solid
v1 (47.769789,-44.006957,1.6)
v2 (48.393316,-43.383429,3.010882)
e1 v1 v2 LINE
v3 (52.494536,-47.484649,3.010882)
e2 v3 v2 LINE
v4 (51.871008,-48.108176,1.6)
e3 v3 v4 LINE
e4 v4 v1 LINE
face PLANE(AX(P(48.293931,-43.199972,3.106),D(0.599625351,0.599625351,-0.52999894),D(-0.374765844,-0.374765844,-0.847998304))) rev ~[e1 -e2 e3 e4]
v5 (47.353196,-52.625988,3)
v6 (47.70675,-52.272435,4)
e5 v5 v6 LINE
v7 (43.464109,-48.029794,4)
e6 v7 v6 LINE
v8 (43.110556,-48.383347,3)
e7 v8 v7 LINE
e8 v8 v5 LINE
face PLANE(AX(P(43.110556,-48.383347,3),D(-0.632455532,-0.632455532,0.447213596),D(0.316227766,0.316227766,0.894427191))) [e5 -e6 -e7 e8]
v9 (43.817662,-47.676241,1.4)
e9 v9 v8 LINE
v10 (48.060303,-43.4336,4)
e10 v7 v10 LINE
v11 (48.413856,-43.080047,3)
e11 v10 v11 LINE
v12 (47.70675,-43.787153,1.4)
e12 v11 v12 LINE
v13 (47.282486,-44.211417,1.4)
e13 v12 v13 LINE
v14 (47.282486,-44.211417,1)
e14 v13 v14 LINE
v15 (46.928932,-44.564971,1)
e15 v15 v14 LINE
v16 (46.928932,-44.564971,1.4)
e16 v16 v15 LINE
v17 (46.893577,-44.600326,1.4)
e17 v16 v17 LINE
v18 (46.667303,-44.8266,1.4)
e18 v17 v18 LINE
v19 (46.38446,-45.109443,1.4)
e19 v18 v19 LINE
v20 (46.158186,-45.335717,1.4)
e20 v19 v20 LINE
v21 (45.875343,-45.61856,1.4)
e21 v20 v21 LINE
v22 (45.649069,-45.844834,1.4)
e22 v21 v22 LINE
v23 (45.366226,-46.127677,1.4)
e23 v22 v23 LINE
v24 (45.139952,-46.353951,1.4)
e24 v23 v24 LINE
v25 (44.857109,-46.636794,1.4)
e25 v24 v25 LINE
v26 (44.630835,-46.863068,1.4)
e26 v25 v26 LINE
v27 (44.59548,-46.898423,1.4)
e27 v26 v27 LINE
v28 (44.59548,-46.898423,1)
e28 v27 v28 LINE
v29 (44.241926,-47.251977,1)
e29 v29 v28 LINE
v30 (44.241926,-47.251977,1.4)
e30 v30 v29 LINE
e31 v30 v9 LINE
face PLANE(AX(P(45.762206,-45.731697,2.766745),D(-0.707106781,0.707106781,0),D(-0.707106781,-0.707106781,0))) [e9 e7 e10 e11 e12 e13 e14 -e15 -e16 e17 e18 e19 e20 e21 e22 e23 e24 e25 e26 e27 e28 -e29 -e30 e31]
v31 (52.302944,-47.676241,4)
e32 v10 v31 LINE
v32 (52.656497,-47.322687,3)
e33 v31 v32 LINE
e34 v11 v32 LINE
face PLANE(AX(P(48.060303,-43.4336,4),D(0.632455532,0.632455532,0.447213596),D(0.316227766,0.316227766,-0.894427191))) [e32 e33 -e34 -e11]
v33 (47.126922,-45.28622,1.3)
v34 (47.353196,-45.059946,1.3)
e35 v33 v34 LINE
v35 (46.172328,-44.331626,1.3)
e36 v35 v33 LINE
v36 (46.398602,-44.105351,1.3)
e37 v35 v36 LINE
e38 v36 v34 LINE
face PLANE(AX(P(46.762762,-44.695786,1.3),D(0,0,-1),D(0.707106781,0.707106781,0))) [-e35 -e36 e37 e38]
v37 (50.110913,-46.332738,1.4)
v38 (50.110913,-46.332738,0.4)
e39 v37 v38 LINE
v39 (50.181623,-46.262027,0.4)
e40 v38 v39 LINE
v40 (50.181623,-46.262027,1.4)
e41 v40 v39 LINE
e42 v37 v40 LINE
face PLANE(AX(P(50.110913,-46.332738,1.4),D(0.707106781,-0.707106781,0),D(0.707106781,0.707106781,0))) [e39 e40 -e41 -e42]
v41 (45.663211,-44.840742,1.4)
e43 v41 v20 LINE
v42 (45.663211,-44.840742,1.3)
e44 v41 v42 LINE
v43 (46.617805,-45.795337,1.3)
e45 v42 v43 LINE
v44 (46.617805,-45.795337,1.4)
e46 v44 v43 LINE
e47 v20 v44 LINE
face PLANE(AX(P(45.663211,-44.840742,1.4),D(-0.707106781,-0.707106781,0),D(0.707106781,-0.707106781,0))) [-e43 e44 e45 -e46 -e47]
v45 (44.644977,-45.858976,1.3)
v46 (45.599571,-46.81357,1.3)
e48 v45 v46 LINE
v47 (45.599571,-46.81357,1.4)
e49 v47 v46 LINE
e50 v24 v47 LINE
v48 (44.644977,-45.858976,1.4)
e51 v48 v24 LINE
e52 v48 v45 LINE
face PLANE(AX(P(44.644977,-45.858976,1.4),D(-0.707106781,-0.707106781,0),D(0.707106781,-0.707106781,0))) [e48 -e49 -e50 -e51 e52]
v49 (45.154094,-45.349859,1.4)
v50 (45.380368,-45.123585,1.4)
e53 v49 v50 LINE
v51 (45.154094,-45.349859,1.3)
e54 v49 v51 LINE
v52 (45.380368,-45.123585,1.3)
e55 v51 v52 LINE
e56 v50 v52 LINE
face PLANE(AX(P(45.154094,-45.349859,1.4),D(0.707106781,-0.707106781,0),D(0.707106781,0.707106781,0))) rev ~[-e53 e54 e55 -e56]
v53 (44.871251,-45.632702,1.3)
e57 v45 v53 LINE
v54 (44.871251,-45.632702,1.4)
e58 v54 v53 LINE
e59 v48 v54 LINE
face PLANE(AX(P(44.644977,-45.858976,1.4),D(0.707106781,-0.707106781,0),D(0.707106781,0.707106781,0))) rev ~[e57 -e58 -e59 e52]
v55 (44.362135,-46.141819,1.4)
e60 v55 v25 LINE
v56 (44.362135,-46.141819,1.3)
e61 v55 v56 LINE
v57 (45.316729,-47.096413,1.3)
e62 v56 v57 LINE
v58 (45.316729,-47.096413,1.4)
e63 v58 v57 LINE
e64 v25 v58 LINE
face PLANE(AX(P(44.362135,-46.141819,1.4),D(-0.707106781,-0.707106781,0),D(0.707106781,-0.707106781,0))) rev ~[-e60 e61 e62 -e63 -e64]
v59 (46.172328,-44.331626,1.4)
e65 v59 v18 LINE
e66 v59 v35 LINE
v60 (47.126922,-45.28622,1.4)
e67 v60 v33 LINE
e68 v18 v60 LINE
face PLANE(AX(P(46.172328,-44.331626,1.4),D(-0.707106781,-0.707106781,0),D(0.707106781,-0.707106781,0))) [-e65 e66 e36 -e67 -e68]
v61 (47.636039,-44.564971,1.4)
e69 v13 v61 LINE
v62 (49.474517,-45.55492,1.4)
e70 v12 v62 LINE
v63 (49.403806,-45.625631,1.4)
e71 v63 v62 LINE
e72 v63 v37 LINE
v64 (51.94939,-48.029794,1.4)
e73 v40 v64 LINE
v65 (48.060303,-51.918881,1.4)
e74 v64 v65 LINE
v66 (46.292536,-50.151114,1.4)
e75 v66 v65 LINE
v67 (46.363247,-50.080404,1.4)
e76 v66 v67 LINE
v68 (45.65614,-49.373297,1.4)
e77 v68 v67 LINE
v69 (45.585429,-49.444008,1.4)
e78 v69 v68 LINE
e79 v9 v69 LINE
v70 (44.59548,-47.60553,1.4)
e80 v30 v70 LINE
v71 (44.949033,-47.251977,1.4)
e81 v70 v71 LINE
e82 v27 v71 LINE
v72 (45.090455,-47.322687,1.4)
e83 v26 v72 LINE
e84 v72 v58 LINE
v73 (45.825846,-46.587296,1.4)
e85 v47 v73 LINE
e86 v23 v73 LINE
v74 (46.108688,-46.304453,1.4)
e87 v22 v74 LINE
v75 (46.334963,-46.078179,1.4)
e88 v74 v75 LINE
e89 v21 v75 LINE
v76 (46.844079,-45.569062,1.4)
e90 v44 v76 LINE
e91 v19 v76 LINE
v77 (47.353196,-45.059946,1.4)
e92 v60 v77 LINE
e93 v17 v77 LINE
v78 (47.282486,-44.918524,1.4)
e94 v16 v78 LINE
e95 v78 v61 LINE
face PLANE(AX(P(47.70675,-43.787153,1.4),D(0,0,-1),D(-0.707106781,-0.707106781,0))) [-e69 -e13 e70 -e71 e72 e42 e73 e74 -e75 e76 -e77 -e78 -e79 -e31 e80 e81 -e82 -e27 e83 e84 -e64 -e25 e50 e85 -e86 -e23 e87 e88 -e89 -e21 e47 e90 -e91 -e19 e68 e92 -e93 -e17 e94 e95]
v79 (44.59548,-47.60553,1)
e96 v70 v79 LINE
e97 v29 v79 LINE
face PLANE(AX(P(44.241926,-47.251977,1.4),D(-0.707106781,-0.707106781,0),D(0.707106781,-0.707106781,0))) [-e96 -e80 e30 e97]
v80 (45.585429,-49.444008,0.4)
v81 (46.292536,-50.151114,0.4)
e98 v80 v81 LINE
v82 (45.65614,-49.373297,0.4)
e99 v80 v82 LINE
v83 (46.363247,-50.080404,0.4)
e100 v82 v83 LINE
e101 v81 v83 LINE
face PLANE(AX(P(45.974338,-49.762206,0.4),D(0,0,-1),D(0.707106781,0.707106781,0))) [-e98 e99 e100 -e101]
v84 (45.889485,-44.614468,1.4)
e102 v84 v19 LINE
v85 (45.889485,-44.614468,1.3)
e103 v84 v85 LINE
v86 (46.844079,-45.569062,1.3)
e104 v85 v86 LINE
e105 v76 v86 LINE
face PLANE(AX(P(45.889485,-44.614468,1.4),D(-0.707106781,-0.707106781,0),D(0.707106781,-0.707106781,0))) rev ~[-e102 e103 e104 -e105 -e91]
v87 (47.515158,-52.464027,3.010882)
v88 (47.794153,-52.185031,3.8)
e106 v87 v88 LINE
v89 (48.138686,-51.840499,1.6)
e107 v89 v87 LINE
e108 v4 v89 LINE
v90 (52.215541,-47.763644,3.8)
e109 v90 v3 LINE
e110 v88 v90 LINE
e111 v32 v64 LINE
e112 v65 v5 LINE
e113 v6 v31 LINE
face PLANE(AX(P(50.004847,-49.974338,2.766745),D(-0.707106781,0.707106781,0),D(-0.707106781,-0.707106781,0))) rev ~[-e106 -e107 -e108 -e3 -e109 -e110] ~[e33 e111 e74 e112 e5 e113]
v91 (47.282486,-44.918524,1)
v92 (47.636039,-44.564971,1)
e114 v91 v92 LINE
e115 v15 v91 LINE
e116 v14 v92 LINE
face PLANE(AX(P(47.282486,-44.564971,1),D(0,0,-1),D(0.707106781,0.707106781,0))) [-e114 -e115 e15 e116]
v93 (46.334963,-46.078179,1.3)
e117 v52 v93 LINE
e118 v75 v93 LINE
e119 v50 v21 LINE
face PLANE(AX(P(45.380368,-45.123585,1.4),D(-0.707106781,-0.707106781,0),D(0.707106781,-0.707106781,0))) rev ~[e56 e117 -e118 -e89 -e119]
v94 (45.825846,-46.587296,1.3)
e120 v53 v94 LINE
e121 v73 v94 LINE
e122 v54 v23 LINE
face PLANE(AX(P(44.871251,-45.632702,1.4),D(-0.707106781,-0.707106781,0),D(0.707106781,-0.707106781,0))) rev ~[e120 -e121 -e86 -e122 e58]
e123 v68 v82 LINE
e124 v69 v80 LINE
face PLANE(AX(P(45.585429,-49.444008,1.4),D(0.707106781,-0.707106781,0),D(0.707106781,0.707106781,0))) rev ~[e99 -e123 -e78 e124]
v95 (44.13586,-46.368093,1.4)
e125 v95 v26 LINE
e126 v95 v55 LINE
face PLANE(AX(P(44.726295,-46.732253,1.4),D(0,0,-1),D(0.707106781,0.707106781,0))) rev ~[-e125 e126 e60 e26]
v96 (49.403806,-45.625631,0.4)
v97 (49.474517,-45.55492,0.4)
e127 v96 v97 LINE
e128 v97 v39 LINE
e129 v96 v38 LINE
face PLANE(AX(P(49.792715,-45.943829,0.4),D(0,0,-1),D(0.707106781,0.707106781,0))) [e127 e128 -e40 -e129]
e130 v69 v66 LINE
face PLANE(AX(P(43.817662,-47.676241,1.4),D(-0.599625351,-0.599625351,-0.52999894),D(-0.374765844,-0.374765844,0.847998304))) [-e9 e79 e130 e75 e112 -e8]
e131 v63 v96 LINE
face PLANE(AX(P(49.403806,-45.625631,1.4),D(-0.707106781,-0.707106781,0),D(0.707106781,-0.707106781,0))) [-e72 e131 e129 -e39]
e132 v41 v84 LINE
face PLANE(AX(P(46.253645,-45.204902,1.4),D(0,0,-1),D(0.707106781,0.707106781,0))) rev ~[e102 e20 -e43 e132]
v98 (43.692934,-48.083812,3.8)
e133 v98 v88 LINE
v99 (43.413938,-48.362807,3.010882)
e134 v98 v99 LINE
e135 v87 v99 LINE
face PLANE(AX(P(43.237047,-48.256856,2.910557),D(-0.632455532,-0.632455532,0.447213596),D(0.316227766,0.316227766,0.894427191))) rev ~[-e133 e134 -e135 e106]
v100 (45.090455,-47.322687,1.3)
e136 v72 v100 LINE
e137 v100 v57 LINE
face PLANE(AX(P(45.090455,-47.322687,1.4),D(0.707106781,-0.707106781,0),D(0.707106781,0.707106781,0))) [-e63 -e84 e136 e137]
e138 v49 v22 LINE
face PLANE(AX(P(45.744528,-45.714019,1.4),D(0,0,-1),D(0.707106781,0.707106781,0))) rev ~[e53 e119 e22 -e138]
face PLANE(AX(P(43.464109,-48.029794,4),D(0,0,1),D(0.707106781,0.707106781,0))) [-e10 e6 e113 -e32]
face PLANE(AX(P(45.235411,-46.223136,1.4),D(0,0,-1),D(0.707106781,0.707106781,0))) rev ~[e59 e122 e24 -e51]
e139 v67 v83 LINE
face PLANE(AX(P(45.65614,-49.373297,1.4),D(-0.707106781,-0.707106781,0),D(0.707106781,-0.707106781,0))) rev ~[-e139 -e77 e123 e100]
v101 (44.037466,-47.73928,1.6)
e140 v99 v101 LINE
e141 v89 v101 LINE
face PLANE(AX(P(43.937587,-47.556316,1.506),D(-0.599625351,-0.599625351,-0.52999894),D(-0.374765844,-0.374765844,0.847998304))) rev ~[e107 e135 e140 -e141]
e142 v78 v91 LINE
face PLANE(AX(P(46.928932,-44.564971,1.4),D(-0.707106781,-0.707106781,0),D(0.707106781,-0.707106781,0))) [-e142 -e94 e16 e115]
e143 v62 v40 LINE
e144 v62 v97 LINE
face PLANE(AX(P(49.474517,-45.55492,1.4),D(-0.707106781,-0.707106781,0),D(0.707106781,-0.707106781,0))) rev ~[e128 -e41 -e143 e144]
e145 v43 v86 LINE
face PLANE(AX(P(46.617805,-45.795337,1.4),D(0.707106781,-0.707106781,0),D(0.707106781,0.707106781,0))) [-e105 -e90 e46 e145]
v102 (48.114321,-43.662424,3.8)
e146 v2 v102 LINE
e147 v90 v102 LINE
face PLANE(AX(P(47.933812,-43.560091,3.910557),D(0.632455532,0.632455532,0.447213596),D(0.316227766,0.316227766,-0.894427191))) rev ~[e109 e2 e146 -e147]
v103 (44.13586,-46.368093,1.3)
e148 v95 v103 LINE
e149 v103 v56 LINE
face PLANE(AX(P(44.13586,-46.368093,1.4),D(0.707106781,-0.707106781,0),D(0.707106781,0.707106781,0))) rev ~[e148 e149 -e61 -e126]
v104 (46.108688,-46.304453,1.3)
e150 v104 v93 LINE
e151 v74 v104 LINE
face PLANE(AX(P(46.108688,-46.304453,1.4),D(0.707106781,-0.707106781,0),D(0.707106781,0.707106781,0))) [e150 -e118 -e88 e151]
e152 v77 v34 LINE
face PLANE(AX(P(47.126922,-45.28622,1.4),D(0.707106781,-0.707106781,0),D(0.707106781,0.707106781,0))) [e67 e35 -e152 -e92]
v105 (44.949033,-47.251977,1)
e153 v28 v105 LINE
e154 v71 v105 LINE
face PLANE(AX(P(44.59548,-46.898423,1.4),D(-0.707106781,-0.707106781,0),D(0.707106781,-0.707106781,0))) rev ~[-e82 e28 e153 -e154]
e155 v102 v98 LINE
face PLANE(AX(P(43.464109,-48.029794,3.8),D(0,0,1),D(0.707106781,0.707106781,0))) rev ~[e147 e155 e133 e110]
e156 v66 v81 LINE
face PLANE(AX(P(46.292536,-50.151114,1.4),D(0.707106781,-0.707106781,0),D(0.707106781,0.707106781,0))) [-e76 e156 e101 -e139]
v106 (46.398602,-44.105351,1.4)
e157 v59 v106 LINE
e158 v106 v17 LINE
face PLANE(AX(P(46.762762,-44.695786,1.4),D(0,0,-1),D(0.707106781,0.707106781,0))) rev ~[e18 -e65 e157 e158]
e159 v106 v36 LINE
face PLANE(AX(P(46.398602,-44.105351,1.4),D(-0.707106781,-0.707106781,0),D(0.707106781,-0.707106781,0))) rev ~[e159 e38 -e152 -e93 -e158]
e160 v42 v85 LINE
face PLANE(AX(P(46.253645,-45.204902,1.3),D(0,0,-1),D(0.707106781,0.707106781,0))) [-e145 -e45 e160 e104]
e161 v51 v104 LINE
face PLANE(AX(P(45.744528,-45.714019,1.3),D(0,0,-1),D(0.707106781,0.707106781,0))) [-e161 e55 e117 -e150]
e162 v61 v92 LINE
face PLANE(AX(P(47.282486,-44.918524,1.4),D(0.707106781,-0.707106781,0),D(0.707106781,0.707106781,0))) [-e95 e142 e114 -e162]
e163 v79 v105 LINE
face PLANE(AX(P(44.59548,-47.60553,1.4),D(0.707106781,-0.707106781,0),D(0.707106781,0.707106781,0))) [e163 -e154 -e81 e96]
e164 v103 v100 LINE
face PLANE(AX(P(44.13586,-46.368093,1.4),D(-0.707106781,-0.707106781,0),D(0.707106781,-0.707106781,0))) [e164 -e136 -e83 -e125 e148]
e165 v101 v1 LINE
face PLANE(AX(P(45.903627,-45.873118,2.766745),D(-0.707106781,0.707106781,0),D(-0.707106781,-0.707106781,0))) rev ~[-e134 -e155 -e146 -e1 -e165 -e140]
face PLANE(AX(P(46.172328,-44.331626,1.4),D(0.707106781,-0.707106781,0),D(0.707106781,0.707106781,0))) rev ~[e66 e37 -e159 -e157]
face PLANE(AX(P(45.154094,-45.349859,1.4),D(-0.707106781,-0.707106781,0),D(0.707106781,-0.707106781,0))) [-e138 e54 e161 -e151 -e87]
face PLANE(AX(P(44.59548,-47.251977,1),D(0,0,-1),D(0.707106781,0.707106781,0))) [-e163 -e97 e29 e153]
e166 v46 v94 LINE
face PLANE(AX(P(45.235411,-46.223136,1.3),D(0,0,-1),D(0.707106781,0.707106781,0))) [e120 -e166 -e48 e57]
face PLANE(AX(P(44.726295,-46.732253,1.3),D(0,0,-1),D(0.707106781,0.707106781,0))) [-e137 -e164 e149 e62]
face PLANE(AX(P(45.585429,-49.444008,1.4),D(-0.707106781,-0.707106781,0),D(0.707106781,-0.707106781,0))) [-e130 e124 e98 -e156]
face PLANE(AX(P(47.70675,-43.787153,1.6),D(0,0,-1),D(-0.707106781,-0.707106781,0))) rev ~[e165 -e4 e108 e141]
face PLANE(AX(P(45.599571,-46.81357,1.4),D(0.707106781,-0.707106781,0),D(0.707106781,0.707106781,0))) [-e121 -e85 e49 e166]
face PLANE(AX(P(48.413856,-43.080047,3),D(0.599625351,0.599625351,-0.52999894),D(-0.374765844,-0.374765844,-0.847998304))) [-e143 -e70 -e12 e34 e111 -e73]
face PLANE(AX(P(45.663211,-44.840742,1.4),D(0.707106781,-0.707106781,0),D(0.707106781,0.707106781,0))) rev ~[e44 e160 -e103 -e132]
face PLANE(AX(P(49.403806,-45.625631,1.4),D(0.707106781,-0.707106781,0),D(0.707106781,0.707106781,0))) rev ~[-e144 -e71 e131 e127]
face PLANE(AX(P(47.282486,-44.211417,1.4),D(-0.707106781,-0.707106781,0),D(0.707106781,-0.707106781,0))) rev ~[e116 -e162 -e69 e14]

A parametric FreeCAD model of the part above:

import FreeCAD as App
import Part
import Sketcher

V = App.Vector
Q = App.Units.Quantity


def faces_at(feature, points):
    """Names of the faces that lie closest to the given points."""
    faces = feature.Shape.Faces
    near = lambda p: min(range(len(faces)), key=lambda i: faces[i].distToShape(Part.Vertex(*p))[0])
    return sorted({f"Face{near(p) + 1}" for p in points})


def add_polygon(sketch, points):
    """Adds a closed chain of lines whose ends are joined by coincident constraints."""
    first, n = sketch.GeometryCount, len(points)
    for a, b in zip(points, points[1:] + points[:1]):
        sketch.addGeometry(Part.LineSegment(App.Vector(*a, 0), App.Vector(*b, 0)), False)
    for i in range(n):
        sketch.addConstraint(Sketcher.Constraint("Coincident", first + i, 2, first + (i + 1) % n, 1))

doc = App.newDocument("Part")
body = doc.addObject("PartDesign::Body", "Body")

# Sketch on XY plane
sketch1 = body.newObject("Sketcher::SketchObject", "Sketch")
sketch1.AttachmentSupport = (doc.getObject("XY_Plane"), [""])
sketch1.MapMode = "FlatFace"
add_polygon(sketch1, [(6.5, 0), (0, 0), (-0.5, -1), (0.5, -2.6), (6, -2.6), (7, -1)])  # lines 0-5
sketch1.addConstraint([
    Sketcher.Constraint("Horizontal", 0),
    Sketcher.Constraint("Horizontal", 3),
    Sketcher.Constraint("Coincident", 0, 2, -1, 1),
    Sketcher.Constraint("Horizontal", 1, 2, 4, 2),
    Sketcher.Constraint("Equal", 2, 4),
    Sketcher.Constraint("Equal", 1, 5),
    Sketcher.Constraint("DistanceX", 0, 2, 0, 1, Q("6.5 mm")),
    Sketcher.Constraint("DistanceX", 3, 1, 3, 2, Q("5.5 mm")),
    Sketcher.Constraint("DistanceY", 1, 2, -1, 1, Q("1 mm")),
    Sketcher.Constraint("DistanceX", -1, 1, 4, 2, Q("7 mm")),
    Sketcher.Constraint("DistanceY", 2, 2, -1, 1, Q("2.6 mm")),
])
pad1 = body.newObject("PartDesign::Pad", "Pad")
pad1.Profile = sketch1
pad1.Length = 6
doc.recompute()

thickness = body.newObject("PartDesign::Thickness", "Thickness")
thickness.Base = (pad1, faces_at(pad1, [(3.25, -1.3, 6)]))
thickness.Value = 0.2
thickness.Reversed = True
thickness.Join = "Arc"

# Sketch on XZ plane
sketch2 = body.newObject("Sketcher::SketchObject", "Sketch001")
sketch2.AttachmentSupport = (doc.getObject("XZ_Plane"), [""])
sketch2.MapMode = "FlatFace"
sketch2.AttachmentOffset = App.Placement(V(0, 0, 2.6), App.Rotation())
add_polygon(sketch2, [(5.9, 3.5), (5.9, 2.5), (6, 2.5), (6, 3.5)])  # lines 0-3
add_polygon(sketch2, [(0.5, 3.5), (0.5, 2.5), (0.6, 2.5), (0.6, 3.5)])  # lines 4-7
sketch2.addConstraint([
    Sketcher.Constraint("Vertical", 0),
    Sketcher.Constraint("Horizontal", 1),
    Sketcher.Constraint("Vertical", 2),
    Sketcher.Constraint("Horizontal", 3),
    Sketcher.Constraint("Vertical", 4),
    Sketcher.Constraint("Horizontal", 5),
    Sketcher.Constraint("Vertical", 6),
    Sketcher.Constraint("Horizontal", 7),
    Sketcher.Constraint("Horizontal", 1, 2, 4, 2),
    Sketcher.Constraint("Horizontal", 3, 2, 6, 2),
    Sketcher.Constraint("Equal", 3, 5),
    Sketcher.Constraint("DistanceY", 0, 2, 0, 1, Q("1 mm")),
    Sketcher.Constraint("DistanceX", 1, 1, 1, 2, Q("0.1 mm")),
    Sketcher.Constraint("DistanceX", -1, 1, 1, 2, Q("6 mm")),
    Sketcher.Constraint("DistanceY", -1, 1, 0, 2, Q("2.5 mm")),
    Sketcher.Constraint("DistanceX", -1, 1, 4, 2, Q("0.5 mm")),
])
pad2 = body.newObject("PartDesign::Pad", "Pad001")
pad2.Profile = sketch2
pad2.Length = 1

# Sketch on XZ plane
sketch3 = body.newObject("Sketcher::SketchObject", "Sketch002")
sketch3.AttachmentSupport = (doc.getObject("XZ_Plane"), [""])
sketch3.MapMode = "FlatFace"
sketch3.AttachmentOffset = App.Placement(V(0, 0, 2.6), App.Rotation())
add_polygon(sketch3, [(1.1, 0.5), (1.1, 0), (1.6, 0), (1.6, 0.5)])  # lines 0-3
add_polygon(sketch3, [(4.9, 0.5), (4.9, 0), (5.4, 0), (5.4, 0.5)])  # lines 4-7
sketch3.addConstraint([
    Sketcher.Constraint("Vertical", 0),
    Sketcher.Constraint("Horizontal", 1),
    Sketcher.Constraint("Vertical", 2),
    Sketcher.Constraint("Horizontal", 3),
    Sketcher.Constraint("Vertical", 4),
    Sketcher.Constraint("Horizontal", 5),
    Sketcher.Constraint("Vertical", 6),
    Sketcher.Constraint("Horizontal", 7),
    Sketcher.Constraint("PointOnObject", 0, 2, -1),
    Sketcher.Constraint("PointOnObject", 4, 2, -1),
    Sketcher.Constraint("Horizontal", 3, 2, 6, 2),
    Sketcher.Constraint("Equal", 3, 5),
    Sketcher.Constraint("Equal", 7, 0),
    Sketcher.Constraint("DistanceX", 1, 1, 1, 2, Q("0.5 mm")),
    Sketcher.Constraint("DistanceX", -1, 1, 0, 2, Q("1.1 mm")),
    Sketcher.Constraint("DistanceX", -1, 1, 4, 2, Q("4.9 mm")),
])
pad3 = body.newObject("PartDesign::Pad", "Pad002")
pad3.Profile = sketch3
pad3.Length = 0.4

# Sketch on XZ plane
sketch4 = body.newObject("Sketcher::SketchObject", "Sketch003")
sketch4.AttachmentSupport = (doc.getObject("XZ_Plane"), [""])
sketch4.MapMode = "FlatFace"
sketch4.AttachmentOffset = App.Placement(V(0, 0, 2.6), App.Rotation())
add_polygon(sketch4, [(1.65, 0.65), (1.65, -0.7), (1.97, -0.7), (1.97, 0.65)])  # lines 0-3
add_polygon(sketch4, [(2.37, 0.65), (2.37, -0.7), (2.69, -0.7), (2.69, 0.65)])  # lines 4-7
add_polygon(sketch4, [(3.09, 0.65), (3.09, -0.7), (3.41, -0.7), (3.41, 0.65)])  # lines 8-11
add_polygon(sketch4, [(3.81, 0.65), (3.81, -0.7), (4.13, -0.7), (4.13, 0.65)])  # lines 12-15
add_polygon(sketch4, [(4.53, 0.65), (4.53, -0.7), (4.85, -0.7), (4.85, 0.65)])  # lines 16-19
sketch4.addConstraint([
    Sketcher.Constraint("Vertical", 0),
    Sketcher.Constraint("Horizontal", 1),
    Sketcher.Constraint("Vertical", 2),
    Sketcher.Constraint("Horizontal", 3),
    Sketcher.Constraint("Vertical", 4),
    Sketcher.Constraint("Horizontal", 5),
    Sketcher.Constraint("Vertical", 6),
    Sketcher.Constraint("Horizontal", 7),
    Sketcher.Constraint("Vertical", 8),
    Sketcher.Constraint("Horizontal", 9),
    Sketcher.Constraint("Vertical", 10),
    Sketcher.Constraint("Horizontal", 11),
    Sketcher.Constraint("Vertical", 12),
    Sketcher.Constraint("Horizontal", 13),
    Sketcher.Constraint("Vertical", 14),
    Sketcher.Constraint("Horizontal", 15),
    Sketcher.Constraint("Vertical", 16),
    Sketcher.Constraint("Horizontal", 17),
    Sketcher.Constraint("Vertical", 18),
    Sketcher.Constraint("Horizontal", 19),
    Sketcher.Constraint("Horizontal", 1, 2, 4, 2),
    Sketcher.Constraint("Horizontal", 3, 2, 6, 2),
    Sketcher.Constraint("Horizontal", 5, 2, 8, 2),
    Sketcher.Constraint("Horizontal", 7, 2, 10, 2),
    Sketcher.Constraint("Horizontal", 9, 2, 12, 2),
    Sketcher.Constraint("Horizontal", 11, 2, 14, 2),
    Sketcher.Constraint("Horizontal", 13, 2, 16, 2),
    Sketcher.Constraint("Horizontal", 15, 2, 18, 2),
    Sketcher.Constraint("Equal", 3, 5),
    Sketcher.Constraint("Equal", 7, 9),
    Sketcher.Constraint("Equal", 11, 13),
    Sketcher.Constraint("Equal", 15, 17),
    Sketcher.Constraint("DistanceX", 1, 1, 1, 2, Q("0.32 mm")),
    Sketcher.Constraint("DistanceY", 0, 2, 0, 1, Q("1.35 mm")),
    Sketcher.Constraint("DistanceY", 0, 2, -1, 1, Q("0.7 mm")),
    Sketcher.Constraint("DistanceX", 1, 2, 4, 2, Q("0.4 mm")),
    Sketcher.Constraint("DistanceX", 5, 2, 8, 2, Q("0.4 mm")),
    Sketcher.Constraint("DistanceX", 9, 2, 12, 2, Q("0.4 mm")),
    Sketcher.Constraint("DistanceX", 13, 2, 16, 2, Q("0.4 mm")),
    Sketcher.Constraint("DistanceX", -1, 1, 0, 2, Q("1.65 mm")),
])
pad4 = body.newObject("PartDesign::Pad", "Pad003")
pad4.Profile = sketch4
pad4.Length = 0.1
body2 = doc.addObject("PartDesign::Body", "Body001")
doc.recompute()

body.Placement = App.Placement(V(0, 0, 0), App.Rotation(V(1, 0, 0), 90))
boolean = body2.newObject("PartDesign::Boolean", "Boolean")
boolean.Type = "Fuse"
boolean.addObjects([body])
body3 = doc.addObject("PartDesign::Body", "Body002")
doc.recompute()

body2.Placement = App.Placement(V(43.464109, -48.029794, 4), App.Rotation(V(0, 0, 1), 45))
boolean2 = body3.newObject("PartDesign::Boolean", "Boolean001")
boolean2.Type = "Fuse"
boolean2.addObjects([body2])

doc.recompute()
